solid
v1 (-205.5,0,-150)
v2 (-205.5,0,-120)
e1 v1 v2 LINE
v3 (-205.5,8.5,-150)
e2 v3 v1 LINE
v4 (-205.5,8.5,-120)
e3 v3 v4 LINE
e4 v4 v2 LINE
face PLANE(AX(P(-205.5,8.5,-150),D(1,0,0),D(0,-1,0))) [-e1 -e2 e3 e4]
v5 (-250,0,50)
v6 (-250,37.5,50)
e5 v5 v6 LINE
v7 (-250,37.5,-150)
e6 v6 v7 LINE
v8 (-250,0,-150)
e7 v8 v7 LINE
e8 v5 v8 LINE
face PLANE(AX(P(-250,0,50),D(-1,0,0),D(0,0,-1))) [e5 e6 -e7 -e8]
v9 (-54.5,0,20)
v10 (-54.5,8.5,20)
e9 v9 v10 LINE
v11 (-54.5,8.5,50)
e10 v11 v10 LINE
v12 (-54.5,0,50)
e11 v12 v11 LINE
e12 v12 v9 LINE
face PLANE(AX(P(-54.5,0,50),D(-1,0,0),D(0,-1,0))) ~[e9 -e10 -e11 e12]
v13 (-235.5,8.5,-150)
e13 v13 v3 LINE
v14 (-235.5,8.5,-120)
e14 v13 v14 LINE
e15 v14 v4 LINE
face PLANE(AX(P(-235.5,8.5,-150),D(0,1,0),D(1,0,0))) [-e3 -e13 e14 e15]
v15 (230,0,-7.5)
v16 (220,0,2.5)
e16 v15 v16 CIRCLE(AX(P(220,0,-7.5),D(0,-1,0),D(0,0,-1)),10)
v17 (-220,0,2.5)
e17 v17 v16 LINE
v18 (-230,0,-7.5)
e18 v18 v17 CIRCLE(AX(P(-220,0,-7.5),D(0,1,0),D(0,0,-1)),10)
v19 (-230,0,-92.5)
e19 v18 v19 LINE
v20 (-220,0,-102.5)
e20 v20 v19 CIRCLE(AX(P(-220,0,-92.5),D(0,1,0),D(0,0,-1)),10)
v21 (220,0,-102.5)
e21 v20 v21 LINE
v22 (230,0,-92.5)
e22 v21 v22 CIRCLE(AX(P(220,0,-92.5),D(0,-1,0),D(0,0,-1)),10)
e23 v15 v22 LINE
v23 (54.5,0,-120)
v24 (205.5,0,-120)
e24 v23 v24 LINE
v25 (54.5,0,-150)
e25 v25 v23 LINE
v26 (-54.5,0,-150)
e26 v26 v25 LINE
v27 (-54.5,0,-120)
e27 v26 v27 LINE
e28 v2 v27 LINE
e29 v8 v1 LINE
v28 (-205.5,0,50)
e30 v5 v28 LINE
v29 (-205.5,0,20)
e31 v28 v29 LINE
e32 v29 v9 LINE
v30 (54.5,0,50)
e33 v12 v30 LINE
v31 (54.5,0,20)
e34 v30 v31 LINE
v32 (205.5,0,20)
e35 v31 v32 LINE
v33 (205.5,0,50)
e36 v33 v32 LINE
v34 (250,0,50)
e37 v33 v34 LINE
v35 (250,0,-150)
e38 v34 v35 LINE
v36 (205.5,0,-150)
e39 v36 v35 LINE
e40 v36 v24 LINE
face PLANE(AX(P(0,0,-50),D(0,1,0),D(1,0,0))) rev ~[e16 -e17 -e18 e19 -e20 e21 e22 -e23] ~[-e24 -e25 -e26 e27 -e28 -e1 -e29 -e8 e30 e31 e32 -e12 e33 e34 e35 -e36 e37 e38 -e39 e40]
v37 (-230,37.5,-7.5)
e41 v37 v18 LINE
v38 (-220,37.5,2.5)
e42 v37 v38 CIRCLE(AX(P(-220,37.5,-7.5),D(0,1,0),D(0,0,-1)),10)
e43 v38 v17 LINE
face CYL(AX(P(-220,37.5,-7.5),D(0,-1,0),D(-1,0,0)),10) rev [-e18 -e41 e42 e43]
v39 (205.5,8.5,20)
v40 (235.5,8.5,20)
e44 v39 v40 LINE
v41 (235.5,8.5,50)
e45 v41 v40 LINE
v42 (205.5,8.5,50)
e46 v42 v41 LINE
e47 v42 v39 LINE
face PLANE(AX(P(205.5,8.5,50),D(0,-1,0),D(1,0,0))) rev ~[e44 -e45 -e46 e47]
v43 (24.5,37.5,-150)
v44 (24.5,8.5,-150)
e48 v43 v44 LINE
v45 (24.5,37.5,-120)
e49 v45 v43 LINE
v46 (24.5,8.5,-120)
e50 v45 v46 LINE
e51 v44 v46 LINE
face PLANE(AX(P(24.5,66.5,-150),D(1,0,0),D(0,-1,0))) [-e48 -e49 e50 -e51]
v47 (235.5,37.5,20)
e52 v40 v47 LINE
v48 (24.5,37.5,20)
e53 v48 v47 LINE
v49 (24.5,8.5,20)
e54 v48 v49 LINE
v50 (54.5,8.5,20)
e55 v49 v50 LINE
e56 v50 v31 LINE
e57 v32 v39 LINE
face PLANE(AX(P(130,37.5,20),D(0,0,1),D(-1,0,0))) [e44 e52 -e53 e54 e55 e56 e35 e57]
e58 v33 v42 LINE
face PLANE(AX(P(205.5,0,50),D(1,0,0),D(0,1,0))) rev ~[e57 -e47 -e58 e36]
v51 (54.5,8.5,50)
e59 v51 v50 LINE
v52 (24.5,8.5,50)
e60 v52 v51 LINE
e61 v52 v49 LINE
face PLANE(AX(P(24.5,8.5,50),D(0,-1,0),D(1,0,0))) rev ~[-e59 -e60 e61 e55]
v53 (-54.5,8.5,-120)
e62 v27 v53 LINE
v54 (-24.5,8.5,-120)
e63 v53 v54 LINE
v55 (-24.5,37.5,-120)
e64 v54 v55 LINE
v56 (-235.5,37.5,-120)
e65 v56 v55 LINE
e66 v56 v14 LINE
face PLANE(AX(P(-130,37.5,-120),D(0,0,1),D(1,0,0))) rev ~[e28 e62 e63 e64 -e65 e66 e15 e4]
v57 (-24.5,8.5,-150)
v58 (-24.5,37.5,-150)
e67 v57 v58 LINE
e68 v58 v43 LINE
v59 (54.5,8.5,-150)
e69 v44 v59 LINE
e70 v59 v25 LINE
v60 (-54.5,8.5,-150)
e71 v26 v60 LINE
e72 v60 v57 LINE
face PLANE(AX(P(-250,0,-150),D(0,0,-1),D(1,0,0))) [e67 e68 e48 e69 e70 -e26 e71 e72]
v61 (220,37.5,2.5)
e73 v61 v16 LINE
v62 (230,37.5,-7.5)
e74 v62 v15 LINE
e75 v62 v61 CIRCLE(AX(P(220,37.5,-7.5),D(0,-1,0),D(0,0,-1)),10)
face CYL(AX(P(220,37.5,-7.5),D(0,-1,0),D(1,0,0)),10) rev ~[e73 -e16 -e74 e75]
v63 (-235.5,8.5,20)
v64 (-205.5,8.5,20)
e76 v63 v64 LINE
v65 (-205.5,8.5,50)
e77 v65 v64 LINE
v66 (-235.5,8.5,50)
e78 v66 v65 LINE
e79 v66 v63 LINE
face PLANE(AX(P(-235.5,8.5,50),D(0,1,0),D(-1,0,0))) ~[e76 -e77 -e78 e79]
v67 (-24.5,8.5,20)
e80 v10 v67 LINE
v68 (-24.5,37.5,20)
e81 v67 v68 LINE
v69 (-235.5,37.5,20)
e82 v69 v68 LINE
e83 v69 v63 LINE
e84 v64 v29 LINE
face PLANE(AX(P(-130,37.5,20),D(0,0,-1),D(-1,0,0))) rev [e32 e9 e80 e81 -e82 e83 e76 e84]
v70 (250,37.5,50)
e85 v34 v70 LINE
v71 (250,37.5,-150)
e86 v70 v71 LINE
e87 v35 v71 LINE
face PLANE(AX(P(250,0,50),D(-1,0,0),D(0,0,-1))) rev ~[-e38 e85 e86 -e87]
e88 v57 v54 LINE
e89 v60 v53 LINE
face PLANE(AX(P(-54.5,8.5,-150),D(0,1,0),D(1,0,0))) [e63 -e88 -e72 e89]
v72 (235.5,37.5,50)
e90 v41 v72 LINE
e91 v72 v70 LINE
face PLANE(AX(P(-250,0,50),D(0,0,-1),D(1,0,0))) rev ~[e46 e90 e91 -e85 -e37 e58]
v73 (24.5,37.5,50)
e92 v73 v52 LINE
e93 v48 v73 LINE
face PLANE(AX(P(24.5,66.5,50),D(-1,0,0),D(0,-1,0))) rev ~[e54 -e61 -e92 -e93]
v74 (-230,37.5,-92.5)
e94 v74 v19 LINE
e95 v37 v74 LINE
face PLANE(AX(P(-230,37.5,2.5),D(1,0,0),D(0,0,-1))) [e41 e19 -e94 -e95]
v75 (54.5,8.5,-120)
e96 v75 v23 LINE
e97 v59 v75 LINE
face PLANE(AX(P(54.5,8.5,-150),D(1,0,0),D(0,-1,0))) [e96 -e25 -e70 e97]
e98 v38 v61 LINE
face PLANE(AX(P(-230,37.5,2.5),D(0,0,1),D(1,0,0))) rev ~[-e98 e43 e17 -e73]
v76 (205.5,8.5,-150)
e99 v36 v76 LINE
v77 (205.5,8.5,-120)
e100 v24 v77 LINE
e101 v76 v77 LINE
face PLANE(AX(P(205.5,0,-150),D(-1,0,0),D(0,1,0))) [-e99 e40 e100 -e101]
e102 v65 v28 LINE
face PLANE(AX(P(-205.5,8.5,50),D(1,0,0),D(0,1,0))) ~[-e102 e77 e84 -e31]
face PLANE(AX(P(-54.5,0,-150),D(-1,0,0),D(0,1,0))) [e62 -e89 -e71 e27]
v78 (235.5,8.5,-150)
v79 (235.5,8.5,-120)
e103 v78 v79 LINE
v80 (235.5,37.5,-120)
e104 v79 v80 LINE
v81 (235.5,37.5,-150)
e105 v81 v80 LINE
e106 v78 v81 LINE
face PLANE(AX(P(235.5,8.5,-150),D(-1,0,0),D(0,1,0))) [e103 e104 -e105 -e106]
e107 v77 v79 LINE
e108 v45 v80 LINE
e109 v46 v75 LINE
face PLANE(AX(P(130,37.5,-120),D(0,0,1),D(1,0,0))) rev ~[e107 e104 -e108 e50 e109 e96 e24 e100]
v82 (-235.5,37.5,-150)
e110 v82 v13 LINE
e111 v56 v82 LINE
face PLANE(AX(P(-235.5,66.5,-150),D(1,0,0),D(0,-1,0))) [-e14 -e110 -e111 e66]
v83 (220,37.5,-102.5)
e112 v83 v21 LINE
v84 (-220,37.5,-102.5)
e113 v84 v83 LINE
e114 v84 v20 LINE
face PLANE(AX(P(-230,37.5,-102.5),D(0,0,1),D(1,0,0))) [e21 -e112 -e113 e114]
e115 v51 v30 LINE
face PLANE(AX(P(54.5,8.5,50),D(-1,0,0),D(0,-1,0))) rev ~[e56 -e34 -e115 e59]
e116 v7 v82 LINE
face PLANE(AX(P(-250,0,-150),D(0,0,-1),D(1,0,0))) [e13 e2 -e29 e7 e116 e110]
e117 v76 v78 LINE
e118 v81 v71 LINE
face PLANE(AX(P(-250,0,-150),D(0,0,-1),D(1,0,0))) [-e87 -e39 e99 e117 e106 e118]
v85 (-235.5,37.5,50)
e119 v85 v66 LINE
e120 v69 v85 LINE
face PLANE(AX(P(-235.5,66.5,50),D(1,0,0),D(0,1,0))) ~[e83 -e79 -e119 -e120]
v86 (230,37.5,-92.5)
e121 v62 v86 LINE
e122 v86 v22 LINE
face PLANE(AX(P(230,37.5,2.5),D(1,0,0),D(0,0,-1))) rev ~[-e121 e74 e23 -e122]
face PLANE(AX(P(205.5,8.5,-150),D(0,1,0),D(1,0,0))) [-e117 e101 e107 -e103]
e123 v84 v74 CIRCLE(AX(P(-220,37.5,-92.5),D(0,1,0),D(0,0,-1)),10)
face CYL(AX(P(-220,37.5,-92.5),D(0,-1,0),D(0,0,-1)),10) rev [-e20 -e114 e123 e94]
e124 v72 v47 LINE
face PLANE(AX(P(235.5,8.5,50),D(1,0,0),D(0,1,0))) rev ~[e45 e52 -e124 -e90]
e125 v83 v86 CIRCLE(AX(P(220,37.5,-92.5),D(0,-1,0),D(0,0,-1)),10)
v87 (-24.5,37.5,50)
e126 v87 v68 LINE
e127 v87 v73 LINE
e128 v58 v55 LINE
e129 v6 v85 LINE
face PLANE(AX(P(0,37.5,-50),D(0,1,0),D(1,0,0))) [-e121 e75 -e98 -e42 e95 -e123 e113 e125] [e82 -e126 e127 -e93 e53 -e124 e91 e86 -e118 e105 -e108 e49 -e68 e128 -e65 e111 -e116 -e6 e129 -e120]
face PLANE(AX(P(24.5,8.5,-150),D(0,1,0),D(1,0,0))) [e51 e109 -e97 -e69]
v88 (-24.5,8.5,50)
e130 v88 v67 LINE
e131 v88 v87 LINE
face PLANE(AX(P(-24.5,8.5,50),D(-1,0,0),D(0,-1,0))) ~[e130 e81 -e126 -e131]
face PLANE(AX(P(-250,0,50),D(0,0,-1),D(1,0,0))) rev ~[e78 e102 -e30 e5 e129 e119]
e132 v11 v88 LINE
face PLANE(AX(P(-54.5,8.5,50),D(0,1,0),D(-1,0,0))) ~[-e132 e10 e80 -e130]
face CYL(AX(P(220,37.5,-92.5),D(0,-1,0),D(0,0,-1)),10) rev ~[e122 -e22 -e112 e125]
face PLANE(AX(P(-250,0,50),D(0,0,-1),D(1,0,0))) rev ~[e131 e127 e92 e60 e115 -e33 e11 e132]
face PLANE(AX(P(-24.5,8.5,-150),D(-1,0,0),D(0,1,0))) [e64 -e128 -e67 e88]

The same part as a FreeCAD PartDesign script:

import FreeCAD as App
import Part
import Sketcher


def edges_at(feature, points):
    """Names of the edges that pass closest to the given points."""
    edges = feature.Shape.Edges
    near = lambda p: min(range(len(edges)), key=lambda i: edges[i].distToShape(Part.Vertex(*p))[0])
    return sorted({f"Edge{near(p) + 1}" for p in points})


def add_polygon(sketch, points):
    """Adds a closed chain of lines whose ends are joined by coincident constraints."""
    first, n = sketch.GeometryCount, len(points)
    for a, b in zip(points, points[1:] + points[:1]):
        sketch.addGeometry(Part.LineSegment(App.Vector(*a, 0), App.Vector(*b, 0)), False)
    for i in range(n):
        sketch.addConstraint(Sketcher.Constraint("Coincident", first + i, 2, first + (i + 1) % n, 1))

doc = App.newDocument("Part")
body = doc.addObject("PartDesign::Body", "Body")

sketch1 = body.newObject("Sketcher::SketchObject", "Sketch")
sketch1.AttachmentSupport = (doc.getObject("XZ_Plane"), [""])
sketch1.MapMode = "FlatFace"
add_polygon(sketch1, [(-250, -150), (-250, 50), (250, 50), (250, -150)])
sketch1.addConstraint(Sketcher.Constraint("Vertical", 0))
sketch1.addConstraint(Sketcher.Constraint("Horizontal", 1))
sketch1.addConstraint(Sketcher.Constraint("Vertical", 2))
sketch1.addConstraint(Sketcher.Constraint("Horizontal", 3))
sketch1.addConstraint(Sketcher.Constraint("DistanceX", 1, 1, 1, 2, 500.0))
sketch1.addConstraint(Sketcher.Constraint("DistanceY", 0, 1, 0, 2, 200.0))
sketch1.addConstraint(Sketcher.Constraint("DistanceX", 0, 2, -1, 1, 250.0))
sketch1.addConstraint(Sketcher.Constraint("DistanceY", -1, 1, 0, 2, 50.0))
pad1 = body.newObject("PartDesign::Pad", "Pad")
pad1.Profile = sketch1
pad1.Length = 37.5
pad1.Reversed = True

sketch2 = body.newObject("Sketcher::SketchObject", "Sketch001")
sketch2.AttachmentSupport = (doc.getObject("XY_Plane"), [""])
sketch2.MapMode = "FlatFace"
sketch2.AttachmentOffset = App.Placement(App.Vector(0, 0, -150), App.Rotation())
add_polygon(sketch2, [(-54.5, 66.5), (-24.5, 66.5), (-24.5, 8.5), (-54.5, 8.5), (-54.5, 0), (-205.5, 0), (-205.5, 8.5), (-235.5, 8.5), (-235.5, 66.5), (-205.5, 66.5), (-205.5, 75), (-54.5, 75)])
sketch2.addConstraint(Sketcher.Constraint("Horizontal", 0))
sketch2.addConstraint(Sketcher.Constraint("Vertical", 1))
sketch2.addConstraint(Sketcher.Constraint("Horizontal", 2))
sketch2.addConstraint(Sketcher.Constraint("Vertical", 3))
sketch2.addConstraint(Sketcher.Constraint("Horizontal", 4))
sketch2.addConstraint(Sketcher.Constraint("Vertical", 5))
sketch2.addConstraint(Sketcher.Constraint("Horizontal", 6))
sketch2.addConstraint(Sketcher.Constraint("Vertical", 7))
sketch2.addConstraint(Sketcher.Constraint("Horizontal", 8))
sketch2.addConstraint(Sketcher.Constraint("Vertical", 9))
sketch2.addConstraint(Sketcher.Constraint("Horizontal", 10))
sketch2.addConstraint(Sketcher.Constraint("Vertical", 11))
sketch2.addConstraint(Sketcher.Constraint("PointOnObject", 3, 2, -1))
sketch2.addConstraint(Sketcher.Constraint("Horizontal", 2, 2, 5, 2))
sketch2.addConstraint(Sketcher.Constraint("Horizontal", 0, 2, 7, 2))
sketch2.addConstraint(Sketcher.Constraint("Vertical", 5, 2, 8, 2))
sketch2.addConstraint(Sketcher.Constraint("Vertical", 3, 2, 10, 2))
sketch2.addConstraint(Sketcher.Constraint("Equal", 2, 6))
sketch2.addConstraint(Sketcher.Constraint("Equal", 5, 9))
sketch2.addConstraint(Sketcher.Constraint("DistanceX", 0, 1, 0, 2, 30.0))
sketch2.addConstraint(Sketcher.Constraint("DistanceX", 4, 2, 4, 1, 151.0))
sketch2.addConstraint(Sketcher.Constraint("DistanceY", 1, 2, 1, 1, 58.0))
sketch2.addConstraint(Sketcher.Constraint("DistanceY", 3, 2, 3, 1, 8.5))
sketch2.addConstraint(Sketcher.Constraint("DistanceX", 0, 2, -1, 1, 24.5))
pocket1 = body.newObject("PartDesign::Pocket", "Pocket")
pocket1.Profile = sketch2
pocket1.Length = 30
pocket1.Reversed = True
doc.recompute()

linearpattern = body.newObject("PartDesign::LinearPattern", "LinearPattern")
linearpattern.Originals = [pocket1]
linearpattern.Direction = (doc.getObject("X_Axis"), [""])
linearpattern.Mode = "offset"
linearpattern.Offset = 260
linearpattern.Occurrences = 2
body.Tip = linearpattern
doc.recompute()

datumplane = body.newObject("PartDesign::Plane", "DatumPlane")
datumplane.AttachmentSupport = (doc.getObject("XY_Plane"), [""])
datumplane.MapMode = "FlatFace"
datumplane.AttachmentOffset = App.Placement(App.Vector(0, 0, -50), App.Rotation())
mirrored = body.newObject("PartDesign::Mirrored", "Mirrored")
mirrored.Originals = [pocket1]
mirrored.MirrorPlane = (datumplane, [""])
body.Tip = mirrored

sketch3 = body.newObject("Sketcher::SketchObject", "Sketch002")
sketch3.AttachmentSupport = (doc.getObject("XY_Plane"), [""])
sketch3.MapMode = "FlatFace"
sketch3.AttachmentOffset = App.Placement(App.Vector(0, 0, 50), App.Rotation())
add_polygon(sketch3, [(235.5, 66.5), (205.5, 66.5), (205.5, 75), (54.5, 75), (54.5, 66.5), (24.5, 66.5), (24.5, 8.5), (54.5, 8.5), (54.5, 0), (205.5, 0), (205.5, 8.5), (235.5, 8.5)])
sketch3.addConstraint(Sketcher.Constraint("Horizontal", 0))
sketch3.addConstraint(Sketcher.Constraint("Vertical", 1))
sketch3.addConstraint(Sketcher.Constraint("Horizontal", 2))
sketch3.addConstraint(Sketcher.Constraint("Vertical", 3))
sketch3.addConstraint(Sketcher.Constraint("Horizontal", 4))
sketch3.addConstraint(Sketcher.Constraint("Vertical", 5))
sketch3.addConstraint(Sketcher.Constraint("Horizontal", 6))
sketch3.addConstraint(Sketcher.Constraint("Vertical", 7))
sketch3.addConstraint(Sketcher.Constraint("Horizontal", 8))
sketch3.addConstraint(Sketcher.Constraint("Vertical", 9))
sketch3.addConstraint(Sketcher.Constraint("Horizontal", 10))
sketch3.addConstraint(Sketcher.Constraint("Vertical", 11))
sketch3.addConstraint(Sketcher.Constraint("PointOnObject", 7, 2, -1))
sketch3.addConstraint(Sketcher.Constraint("Horizontal", 0, 2, 3, 2))
sketch3.addConstraint(Sketcher.Constraint("Horizontal", 6, 2, 9, 2))
sketch3.addConstraint(Sketcher.Constraint("Vertical", 3, 2, 6, 2))
sketch3.addConstraint(Sketcher.Constraint("Vertical", 1, 2, 8, 2))
sketch3.addConstraint(Sketcher.Constraint("Equal", 0, 4))
sketch3.addConstraint(Sketcher.Constraint("Equal", 3, 7))
sketch3.addConstraint(Sketcher.Constraint("DistanceX", 0, 2, 0, 1, 30.0))
sketch3.addConstraint(Sketcher.Constraint("DistanceX", 2, 2, 2, 1, 151.0))
sketch3.addConstraint(Sketcher.Constraint("DistanceY", 5, 2, 5, 1, 58.0))
sketch3.addConstraint(Sketcher.Constraint("DistanceY", 1, 1, 1, 2, 8.5))
sketch3.addConstraint(Sketcher.Constraint("DistanceX", -1, 1, 0, 2, 205.5))
pocket2 = body.newObject("PartDesign::Pocket", "Pocket001")
pocket2.Profile = sketch3
pocket2.Length = 30

sketch4 = body.newObject("Sketcher::SketchObject", "Sketch003")
sketch4.AttachmentSupport = (doc.getObject("XZ_Plane"), [""])
sketch4.MapMode = "FlatFace"
sketch4.AttachmentOffset = App.Placement(App.Vector(0, 0, -37.5), App.Rotation())
add_polygon(sketch4, [(-230, -102.5), (-230, 2.5), (230, 2.5), (230, -102.5)])
sketch4.addConstraint(Sketcher.Constraint("Vertical", 0))
sketch4.addConstraint(Sketcher.Constraint("Horizontal", 1))
sketch4.addConstraint(Sketcher.Constraint("Vertical", 2))
sketch4.addConstraint(Sketcher.Constraint("Horizontal", 3))
sketch4.addConstraint(Sketcher.Constraint("DistanceX", 1, 1, 1, 2, 460.0))
sketch4.addConstraint(Sketcher.Constraint("DistanceY", 0, 1, 0, 2, 105.0))
sketch4.addConstraint(Sketcher.Constraint("DistanceX", 0, 2, -1, 1, 230.0))
sketch4.addConstraint(Sketcher.Constraint("DistanceY", -1, 1, 0, 2, 2.5))
pocket3 = body.newObject("PartDesign::Pocket", "Pocket002")
pocket3.Profile = sketch4
pocket3.Length = 160
pocket3.Reversed = True
doc.recompute()

fillet = body.newObject("PartDesign::Fillet", "Fillet")
fillet.Base = (pocket3, edges_at(pocket3, [(-230, 18.75, -102.5)]))
fillet.Radius = 10
doc.recompute()

fillet2 = body.newObject("PartDesign::Fillet", "Fillet001")
fillet2.Base = (fillet, edges_at(fillet, [(-230, 18.75, 2.5)]))
fillet2.Radius = 10
doc.recompute()

fillet3 = body.newObject("PartDesign::Fillet", "Fillet002")
fillet3.Base = (fillet2, edges_at(fillet2, [(230, 18.75, -102.5)]))
fillet3.Radius = 10
doc.recompute()

fillet4 = body.newObject("PartDesign::Fillet", "Fillet003")
fillet4.Base = (fillet3, edges_at(fillet3, [(230, 18.75, 2.5)]))
fillet4.Radius = 10

doc.recompute()
